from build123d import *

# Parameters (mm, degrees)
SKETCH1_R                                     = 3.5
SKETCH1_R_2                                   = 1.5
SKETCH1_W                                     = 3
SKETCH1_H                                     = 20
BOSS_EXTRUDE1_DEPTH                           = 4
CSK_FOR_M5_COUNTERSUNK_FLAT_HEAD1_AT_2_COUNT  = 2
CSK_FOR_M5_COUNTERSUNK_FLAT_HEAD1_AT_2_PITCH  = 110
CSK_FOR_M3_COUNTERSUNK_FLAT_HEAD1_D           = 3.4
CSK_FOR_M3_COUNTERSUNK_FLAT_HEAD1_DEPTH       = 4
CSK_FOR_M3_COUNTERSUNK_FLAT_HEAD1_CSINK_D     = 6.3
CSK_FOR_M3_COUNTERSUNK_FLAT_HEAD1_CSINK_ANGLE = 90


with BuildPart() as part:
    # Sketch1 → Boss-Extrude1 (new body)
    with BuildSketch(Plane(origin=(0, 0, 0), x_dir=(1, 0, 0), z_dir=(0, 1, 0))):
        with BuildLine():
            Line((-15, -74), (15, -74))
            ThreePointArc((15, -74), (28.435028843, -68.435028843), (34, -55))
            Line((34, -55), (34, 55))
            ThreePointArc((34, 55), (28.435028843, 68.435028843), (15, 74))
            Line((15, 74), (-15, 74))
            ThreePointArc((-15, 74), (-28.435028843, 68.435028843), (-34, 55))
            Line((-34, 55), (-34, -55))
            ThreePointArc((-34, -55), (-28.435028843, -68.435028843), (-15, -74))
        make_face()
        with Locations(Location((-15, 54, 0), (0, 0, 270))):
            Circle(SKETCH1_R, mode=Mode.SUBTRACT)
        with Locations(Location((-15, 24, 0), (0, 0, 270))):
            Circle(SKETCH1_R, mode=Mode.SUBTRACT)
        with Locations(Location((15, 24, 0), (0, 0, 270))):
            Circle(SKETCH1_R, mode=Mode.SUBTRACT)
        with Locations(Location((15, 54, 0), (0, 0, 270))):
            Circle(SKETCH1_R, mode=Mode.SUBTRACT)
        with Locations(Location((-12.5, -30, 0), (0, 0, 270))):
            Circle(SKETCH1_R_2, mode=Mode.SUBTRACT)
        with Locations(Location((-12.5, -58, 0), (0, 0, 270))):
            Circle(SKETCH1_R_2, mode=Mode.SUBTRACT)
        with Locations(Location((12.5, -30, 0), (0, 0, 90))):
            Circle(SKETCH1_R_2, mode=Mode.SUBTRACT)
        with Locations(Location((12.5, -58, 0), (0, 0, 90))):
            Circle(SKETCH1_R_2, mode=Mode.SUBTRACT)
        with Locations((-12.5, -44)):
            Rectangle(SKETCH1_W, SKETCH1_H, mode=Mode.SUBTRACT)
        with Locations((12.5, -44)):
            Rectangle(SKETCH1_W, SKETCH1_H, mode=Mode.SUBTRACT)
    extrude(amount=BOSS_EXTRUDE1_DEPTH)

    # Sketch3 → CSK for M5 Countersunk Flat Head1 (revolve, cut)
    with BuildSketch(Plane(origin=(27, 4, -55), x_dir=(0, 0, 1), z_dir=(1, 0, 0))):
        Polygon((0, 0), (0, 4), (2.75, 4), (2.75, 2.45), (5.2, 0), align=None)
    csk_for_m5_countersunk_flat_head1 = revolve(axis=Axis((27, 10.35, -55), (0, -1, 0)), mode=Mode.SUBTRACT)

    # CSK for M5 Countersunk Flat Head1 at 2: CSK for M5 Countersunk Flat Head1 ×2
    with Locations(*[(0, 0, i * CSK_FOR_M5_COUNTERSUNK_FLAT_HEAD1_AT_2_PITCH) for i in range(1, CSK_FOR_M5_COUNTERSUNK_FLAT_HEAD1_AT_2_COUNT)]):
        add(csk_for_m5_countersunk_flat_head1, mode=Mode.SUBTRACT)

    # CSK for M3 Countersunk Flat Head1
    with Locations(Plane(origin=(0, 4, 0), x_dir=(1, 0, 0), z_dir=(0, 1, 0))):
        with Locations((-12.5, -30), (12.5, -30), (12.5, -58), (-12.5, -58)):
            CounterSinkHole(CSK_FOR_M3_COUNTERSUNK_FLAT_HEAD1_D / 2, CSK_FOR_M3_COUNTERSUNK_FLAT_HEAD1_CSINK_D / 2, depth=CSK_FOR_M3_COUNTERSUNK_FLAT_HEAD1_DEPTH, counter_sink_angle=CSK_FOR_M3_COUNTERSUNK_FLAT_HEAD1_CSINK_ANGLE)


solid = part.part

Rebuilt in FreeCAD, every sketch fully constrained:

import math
import FreeCAD as App
import Part
import Sketcher

V = App.Vector
Q = App.Units.Quantity


def add_polygon(sketch, points):
    """Adds a closed chain of lines whose ends are joined by coincident constraints."""
    first, n = sketch.GeometryCount, len(points)
    for a, b in zip(points, points[1:] + points[:1]):
        sketch.addGeometry(Part.LineSegment(App.Vector(*a, 0), App.Vector(*b, 0)), False)
    for i in range(n):
        sketch.addConstraint(Sketcher.Constraint("Coincident", first + i, 2, first + (i + 1) % n, 1))

doc = App.newDocument("Part")
body = doc.addObject("PartDesign::Body", "Body")

# Sketch on XZ plane
sketch1 = body.newObject("Sketcher::SketchObject", "Sketch")
sketch1.AttachmentSupport = (doc.getObject("XZ_Plane"), [""])
sketch1.MapMode = "FlatFace"
sketch1.addGeometry(Part.LineSegment(V(-15, 74, 0), V(15, 74, 0)), False)  # 0
sketch1.addGeometry(Part.ArcOfCircle(Part.Circle(V(15, 55, 0), V(0, 0, 1), 19), math.radians(0), math.radians(90)), False)  # 1
sketch1.addGeometry(Part.LineSegment(V(34, 55, 0), V(34, -55, 0)), False)  # 2
sketch1.addGeometry(Part.ArcOfCircle(Part.Circle(V(15, -55, 0), V(0, 0, 1), 19), math.radians(-90), math.radians(0)), False)  # 3
sketch1.addGeometry(Part.LineSegment(V(15, -74, 0), V(-15, -74, 0)), False)  # 4
sketch1.addGeometry(Part.ArcOfCircle(Part.Circle(V(-15, -55, 0), V(0, 0, 1), 19), math.radians(180), math.radians(270)), False)  # 5
sketch1.addGeometry(Part.LineSegment(V(-34, -55, 0), V(-34, 55, 0)), False)  # 6
sketch1.addGeometry(Part.ArcOfCircle(Part.Circle(V(-15, 55, 0), V(0, 0, 1), 19), math.radians(90), math.radians(180)), False)  # 7
sketch1.addGeometry(Part.Circle(V(-12.5, 58, 0), V(0, 0, 1), 1.5), False)  # 8
add_polygon(sketch1, [(-11, 54), (-14, 54), (-14, 34), (-11, 34)])  # lines 9-12
sketch1.addGeometry(Part.Circle(V(-12.5, 30, 0), V(0, 0, 1), 1.5), False)  # 13
sketch1.addGeometry(Part.Circle(V(12.5, 58, 0), V(0, 0, 1), 1.5), False)  # 14
add_polygon(sketch1, [(14, 54), (11, 54), (11, 34), (14, 34)])  # lines 15-18
sketch1.addGeometry(Part.Circle(V(12.5, 30, 0), V(0, 0, 1), 1.5), False)  # 19
sketch1.addGeometry(Part.Circle(V(-15, -24, 0), V(0, 0, 1), 3.5), False)  # 20
sketch1.addGeometry(Part.Circle(V(-15, -54, 0), V(0, 0, 1), 3.5), False)  # 21
sketch1.addGeometry(Part.Circle(V(15, -24, 0), V(0, 0, 1), 3.5), False)  # 22
sketch1.addGeometry(Part.Circle(V(15, -54, 0), V(0, 0, 1), 3.5), False)  # 23
sketch1.addConstraint([
    Sketcher.Constraint("Tangent", 0, 2, 1, 2),
    Sketcher.Constraint("Tangent", 1, 1, 2, 1),
    Sketcher.Constraint("Tangent", 2, 2, 3, 2),
    Sketcher.Constraint("Tangent", 3, 1, 4, 1),
    Sketcher.Constraint("Tangent", 4, 2, 5, 2),
    Sketcher.Constraint("Tangent", 5, 1, 6, 1),
    Sketcher.Constraint("Tangent", 6, 2, 7, 2),
    Sketcher.Constraint("Tangent", 7, 1, 0, 1),
    Sketcher.Constraint("Horizontal", 0),
    Sketcher.Constraint("Vertical", 2),
    Sketcher.Constraint("Horizontal", 4),
    Sketcher.Constraint("Vertical", 6),
    Sketcher.Constraint("Horizontal", 9),
    Sketcher.Constraint("Vertical", 10),
    Sketcher.Constraint("Horizontal", 11),
    Sketcher.Constraint("Vertical", 12),
    Sketcher.Constraint("Horizontal", 15),
    Sketcher.Constraint("Vertical", 16),
    Sketcher.Constraint("Horizontal", 17),
    Sketcher.Constraint("Vertical", 18),
    Sketcher.Constraint("Equal", 1, 3),
    Sketcher.Constraint("Equal", 3, 5),
    Sketcher.Constraint("Equal", 5, 7),
    Sketcher.Constraint("Equal", 8, 13),
    Sketcher.Constraint("Equal", 13, 14),
    Sketcher.Constraint("Equal", 14, 19),
    Sketcher.Constraint("Equal", 20, 21),
    Sketcher.Constraint("Equal", 21, 22),
    Sketcher.Constraint("Equal", 22, 23),
    Sketcher.Constraint("Symmetric", 1, 3, 5, 3, -1, 1),
    Sketcher.Constraint("Symmetric", 8, 3, 14, 3, -2),
    Sketcher.Constraint("Symmetric", 13, 3, 19, 3, -2),
    Sketcher.Constraint("Symmetric", 20, 3, 22, 3, -2),
    Sketcher.Constraint("Symmetric", 21, 3, 23, 3, -2),
    Sketcher.Constraint("Symmetric", 12, 2, 15, 2, -2),
    Sketcher.Constraint("Symmetric", 10, 2, 17, 2, -2),
    Sketcher.Constraint("Vertical", 8, 3, 13, 3),
    Sketcher.Constraint("Vertical", 7, 3, 20, 3),
    Sketcher.Constraint("Vertical", 20, 3, 21, 3),
    Sketcher.Constraint("Diameter", 8, 3.0),
    Sketcher.Constraint("Diameter", 20, 7.0),
    Sketcher.Constraint("Radius", 1, 19.0),
    Sketcher.Constraint("DistanceX", 0, 1, 0, 2, 30.0),
    Sketcher.Constraint("DistanceX", 9, 2, 9, 1, 3.0),
    Sketcher.Constraint("DistanceY", 2, 2, 2, 1, 110.0),
    Sketcher.Constraint("DistanceY", 10, 2, 10, 1, 20.0),
    Sketcher.Constraint("DistanceY", -1, 1, 8, 3, 58.0),
    Sketcher.Constraint("DistanceY", -1, 1, 13, 3, 30.0),
    Sketcher.Constraint("DistanceY", 20, 3, -1, 1, 24.0),
    Sketcher.Constraint("DistanceY", 21, 3, -1, 1, 54.0),
    Sketcher.Constraint("DistanceX", 9, 2, -1, 1, 14.0),
    Sketcher.Constraint("DistanceY", -1, 1, 9, 2, 54.0),
    Sketcher.Constraint("DistanceX", 8, 3, 14, 3, 25.0),
])
pad1 = body.newObject("PartDesign::Pad", "Pad")
pad1.Profile = sketch1
pad1.Length = 4
pad1.Reversed = True

# Sketch on YZ plane
sketch2 = body.newObject("Sketcher::SketchObject", "Sketch001")
sketch2.AttachmentSupport = (doc.getObject("YZ_Plane"), [""])
sketch2.MapMode = "FlatFace"
sketch2.AttachmentOffset = App.Placement(V(0, 0, 27), App.Rotation())
add_polygon(sketch2, [(0, -55), (4, -55), (4, -49.8), (1.6, -52.2), (0, -52.2)])  # lines 0-4
sketch2.addGeometry(Part.LineSegment(V(4, -55, 0), V(0, -55, 0)), True)  # axis
sketch2.addConstraint([
    Sketcher.Constraint("Horizontal", 0),
    Sketcher.Constraint("Vertical", 1),
    Sketcher.Constraint("Horizontal", 3),
    Sketcher.Constraint("Vertical", 4),
    Sketcher.Constraint("Horizontal", 5),
    Sketcher.Constraint("Coincident", 5, 1, 0, 2),
    Sketcher.Constraint("PointOnObject", 3, 2, -2),
    Sketcher.Constraint("PointOnObject", 5, 2, -2),
    Sketcher.Constraint("DistanceX", 0, 1, 0, 2, 4.0),
    Sketcher.Constraint("Angle", 2, Q("-135 deg")),
    Sketcher.Constraint("DistanceY", 1, 1, 1, 2, 5.2),
    Sketcher.Constraint("DistanceY", 0, 2, -1, 1, 55.0),
    Sketcher.Constraint("DistanceX", 3, 2, 3, 1, 1.55),
])
groove = body.newObject("PartDesign::Groove", "Groove")
groove.Profile = sketch2
groove.ReferenceAxis = (sketch2, ["Axis0"])
groove.Angle = 360
doc.recompute()

linearpattern = body.newObject("PartDesign::LinearPattern", "LinearPattern")
linearpattern.Originals = [groove]
linearpattern.Direction = (doc.getObject("Z_Axis"), [""])
linearpattern.Mode = "offset"
linearpattern.Offset = 110
linearpattern.Occurrences = 2
body.Tip = linearpattern

# Sketch on XZ plane
sketch3 = body.newObject("Sketcher::SketchObject", "Sketch002")
sketch3.AttachmentSupport = (doc.getObject("XZ_Plane"), [""])
sketch3.MapMode = "FlatFace"
sketch3.AttachmentOffset = App.Placement(V(0, 0, -4), App.Rotation())
sketch3.addGeometry([
    Part.Circle(V(-12.5, 30, 0), V(0, 0, 1), 1.7),
    Part.Circle(V(12.5, 30, 0), V(0, 0, 1), 1.7),
    Part.Circle(V(12.5, 58, 0), V(0, 0, 1), 1.7),
    Part.Circle(V(-12.5, 58, 0), V(0, 0, 1), 1.7),
], False)
sketch3.addConstraint([
    Sketcher.Constraint("Equal", 0, 1),
    Sketcher.Constraint("Equal", 1, 2),
    Sketcher.Constraint("Equal", 2, 3),
    Sketcher.Constraint("Symmetric", 0, 3, 1, 3, -2),
    Sketcher.Constraint("Symmetric", 2, 3, 3, 3, -2),
    Sketcher.Constraint("Vertical", 1, 3, 2, 3),
    Sketcher.Constraint("Diameter", 0, 3.4),
    Sketcher.Constraint("DistanceY", -1, 1, 0, 3, 30.0),
    Sketcher.Constraint("DistanceY", -1, 1, 2, 3, 58.0),
    Sketcher.Constraint("DistanceX", 0, 3, 1, 3, 25.0),
])
doc.recompute()
hole = body.newObject("PartDesign::Hole", "Hole")
hole.Profile = sketch3
hole.ThreadType = "None"
hole.Diameter = 3.4
hole.DepthType = "Dimension"
hole.Depth = 4
hole.DrillPoint = "Flat"
hole.HoleCutType = "Countersink"
hole.HoleCutDiameter = 6.3
hole.HoleCutCountersinkAngle = 90
hole.Reversed = True

doc.recompute()
